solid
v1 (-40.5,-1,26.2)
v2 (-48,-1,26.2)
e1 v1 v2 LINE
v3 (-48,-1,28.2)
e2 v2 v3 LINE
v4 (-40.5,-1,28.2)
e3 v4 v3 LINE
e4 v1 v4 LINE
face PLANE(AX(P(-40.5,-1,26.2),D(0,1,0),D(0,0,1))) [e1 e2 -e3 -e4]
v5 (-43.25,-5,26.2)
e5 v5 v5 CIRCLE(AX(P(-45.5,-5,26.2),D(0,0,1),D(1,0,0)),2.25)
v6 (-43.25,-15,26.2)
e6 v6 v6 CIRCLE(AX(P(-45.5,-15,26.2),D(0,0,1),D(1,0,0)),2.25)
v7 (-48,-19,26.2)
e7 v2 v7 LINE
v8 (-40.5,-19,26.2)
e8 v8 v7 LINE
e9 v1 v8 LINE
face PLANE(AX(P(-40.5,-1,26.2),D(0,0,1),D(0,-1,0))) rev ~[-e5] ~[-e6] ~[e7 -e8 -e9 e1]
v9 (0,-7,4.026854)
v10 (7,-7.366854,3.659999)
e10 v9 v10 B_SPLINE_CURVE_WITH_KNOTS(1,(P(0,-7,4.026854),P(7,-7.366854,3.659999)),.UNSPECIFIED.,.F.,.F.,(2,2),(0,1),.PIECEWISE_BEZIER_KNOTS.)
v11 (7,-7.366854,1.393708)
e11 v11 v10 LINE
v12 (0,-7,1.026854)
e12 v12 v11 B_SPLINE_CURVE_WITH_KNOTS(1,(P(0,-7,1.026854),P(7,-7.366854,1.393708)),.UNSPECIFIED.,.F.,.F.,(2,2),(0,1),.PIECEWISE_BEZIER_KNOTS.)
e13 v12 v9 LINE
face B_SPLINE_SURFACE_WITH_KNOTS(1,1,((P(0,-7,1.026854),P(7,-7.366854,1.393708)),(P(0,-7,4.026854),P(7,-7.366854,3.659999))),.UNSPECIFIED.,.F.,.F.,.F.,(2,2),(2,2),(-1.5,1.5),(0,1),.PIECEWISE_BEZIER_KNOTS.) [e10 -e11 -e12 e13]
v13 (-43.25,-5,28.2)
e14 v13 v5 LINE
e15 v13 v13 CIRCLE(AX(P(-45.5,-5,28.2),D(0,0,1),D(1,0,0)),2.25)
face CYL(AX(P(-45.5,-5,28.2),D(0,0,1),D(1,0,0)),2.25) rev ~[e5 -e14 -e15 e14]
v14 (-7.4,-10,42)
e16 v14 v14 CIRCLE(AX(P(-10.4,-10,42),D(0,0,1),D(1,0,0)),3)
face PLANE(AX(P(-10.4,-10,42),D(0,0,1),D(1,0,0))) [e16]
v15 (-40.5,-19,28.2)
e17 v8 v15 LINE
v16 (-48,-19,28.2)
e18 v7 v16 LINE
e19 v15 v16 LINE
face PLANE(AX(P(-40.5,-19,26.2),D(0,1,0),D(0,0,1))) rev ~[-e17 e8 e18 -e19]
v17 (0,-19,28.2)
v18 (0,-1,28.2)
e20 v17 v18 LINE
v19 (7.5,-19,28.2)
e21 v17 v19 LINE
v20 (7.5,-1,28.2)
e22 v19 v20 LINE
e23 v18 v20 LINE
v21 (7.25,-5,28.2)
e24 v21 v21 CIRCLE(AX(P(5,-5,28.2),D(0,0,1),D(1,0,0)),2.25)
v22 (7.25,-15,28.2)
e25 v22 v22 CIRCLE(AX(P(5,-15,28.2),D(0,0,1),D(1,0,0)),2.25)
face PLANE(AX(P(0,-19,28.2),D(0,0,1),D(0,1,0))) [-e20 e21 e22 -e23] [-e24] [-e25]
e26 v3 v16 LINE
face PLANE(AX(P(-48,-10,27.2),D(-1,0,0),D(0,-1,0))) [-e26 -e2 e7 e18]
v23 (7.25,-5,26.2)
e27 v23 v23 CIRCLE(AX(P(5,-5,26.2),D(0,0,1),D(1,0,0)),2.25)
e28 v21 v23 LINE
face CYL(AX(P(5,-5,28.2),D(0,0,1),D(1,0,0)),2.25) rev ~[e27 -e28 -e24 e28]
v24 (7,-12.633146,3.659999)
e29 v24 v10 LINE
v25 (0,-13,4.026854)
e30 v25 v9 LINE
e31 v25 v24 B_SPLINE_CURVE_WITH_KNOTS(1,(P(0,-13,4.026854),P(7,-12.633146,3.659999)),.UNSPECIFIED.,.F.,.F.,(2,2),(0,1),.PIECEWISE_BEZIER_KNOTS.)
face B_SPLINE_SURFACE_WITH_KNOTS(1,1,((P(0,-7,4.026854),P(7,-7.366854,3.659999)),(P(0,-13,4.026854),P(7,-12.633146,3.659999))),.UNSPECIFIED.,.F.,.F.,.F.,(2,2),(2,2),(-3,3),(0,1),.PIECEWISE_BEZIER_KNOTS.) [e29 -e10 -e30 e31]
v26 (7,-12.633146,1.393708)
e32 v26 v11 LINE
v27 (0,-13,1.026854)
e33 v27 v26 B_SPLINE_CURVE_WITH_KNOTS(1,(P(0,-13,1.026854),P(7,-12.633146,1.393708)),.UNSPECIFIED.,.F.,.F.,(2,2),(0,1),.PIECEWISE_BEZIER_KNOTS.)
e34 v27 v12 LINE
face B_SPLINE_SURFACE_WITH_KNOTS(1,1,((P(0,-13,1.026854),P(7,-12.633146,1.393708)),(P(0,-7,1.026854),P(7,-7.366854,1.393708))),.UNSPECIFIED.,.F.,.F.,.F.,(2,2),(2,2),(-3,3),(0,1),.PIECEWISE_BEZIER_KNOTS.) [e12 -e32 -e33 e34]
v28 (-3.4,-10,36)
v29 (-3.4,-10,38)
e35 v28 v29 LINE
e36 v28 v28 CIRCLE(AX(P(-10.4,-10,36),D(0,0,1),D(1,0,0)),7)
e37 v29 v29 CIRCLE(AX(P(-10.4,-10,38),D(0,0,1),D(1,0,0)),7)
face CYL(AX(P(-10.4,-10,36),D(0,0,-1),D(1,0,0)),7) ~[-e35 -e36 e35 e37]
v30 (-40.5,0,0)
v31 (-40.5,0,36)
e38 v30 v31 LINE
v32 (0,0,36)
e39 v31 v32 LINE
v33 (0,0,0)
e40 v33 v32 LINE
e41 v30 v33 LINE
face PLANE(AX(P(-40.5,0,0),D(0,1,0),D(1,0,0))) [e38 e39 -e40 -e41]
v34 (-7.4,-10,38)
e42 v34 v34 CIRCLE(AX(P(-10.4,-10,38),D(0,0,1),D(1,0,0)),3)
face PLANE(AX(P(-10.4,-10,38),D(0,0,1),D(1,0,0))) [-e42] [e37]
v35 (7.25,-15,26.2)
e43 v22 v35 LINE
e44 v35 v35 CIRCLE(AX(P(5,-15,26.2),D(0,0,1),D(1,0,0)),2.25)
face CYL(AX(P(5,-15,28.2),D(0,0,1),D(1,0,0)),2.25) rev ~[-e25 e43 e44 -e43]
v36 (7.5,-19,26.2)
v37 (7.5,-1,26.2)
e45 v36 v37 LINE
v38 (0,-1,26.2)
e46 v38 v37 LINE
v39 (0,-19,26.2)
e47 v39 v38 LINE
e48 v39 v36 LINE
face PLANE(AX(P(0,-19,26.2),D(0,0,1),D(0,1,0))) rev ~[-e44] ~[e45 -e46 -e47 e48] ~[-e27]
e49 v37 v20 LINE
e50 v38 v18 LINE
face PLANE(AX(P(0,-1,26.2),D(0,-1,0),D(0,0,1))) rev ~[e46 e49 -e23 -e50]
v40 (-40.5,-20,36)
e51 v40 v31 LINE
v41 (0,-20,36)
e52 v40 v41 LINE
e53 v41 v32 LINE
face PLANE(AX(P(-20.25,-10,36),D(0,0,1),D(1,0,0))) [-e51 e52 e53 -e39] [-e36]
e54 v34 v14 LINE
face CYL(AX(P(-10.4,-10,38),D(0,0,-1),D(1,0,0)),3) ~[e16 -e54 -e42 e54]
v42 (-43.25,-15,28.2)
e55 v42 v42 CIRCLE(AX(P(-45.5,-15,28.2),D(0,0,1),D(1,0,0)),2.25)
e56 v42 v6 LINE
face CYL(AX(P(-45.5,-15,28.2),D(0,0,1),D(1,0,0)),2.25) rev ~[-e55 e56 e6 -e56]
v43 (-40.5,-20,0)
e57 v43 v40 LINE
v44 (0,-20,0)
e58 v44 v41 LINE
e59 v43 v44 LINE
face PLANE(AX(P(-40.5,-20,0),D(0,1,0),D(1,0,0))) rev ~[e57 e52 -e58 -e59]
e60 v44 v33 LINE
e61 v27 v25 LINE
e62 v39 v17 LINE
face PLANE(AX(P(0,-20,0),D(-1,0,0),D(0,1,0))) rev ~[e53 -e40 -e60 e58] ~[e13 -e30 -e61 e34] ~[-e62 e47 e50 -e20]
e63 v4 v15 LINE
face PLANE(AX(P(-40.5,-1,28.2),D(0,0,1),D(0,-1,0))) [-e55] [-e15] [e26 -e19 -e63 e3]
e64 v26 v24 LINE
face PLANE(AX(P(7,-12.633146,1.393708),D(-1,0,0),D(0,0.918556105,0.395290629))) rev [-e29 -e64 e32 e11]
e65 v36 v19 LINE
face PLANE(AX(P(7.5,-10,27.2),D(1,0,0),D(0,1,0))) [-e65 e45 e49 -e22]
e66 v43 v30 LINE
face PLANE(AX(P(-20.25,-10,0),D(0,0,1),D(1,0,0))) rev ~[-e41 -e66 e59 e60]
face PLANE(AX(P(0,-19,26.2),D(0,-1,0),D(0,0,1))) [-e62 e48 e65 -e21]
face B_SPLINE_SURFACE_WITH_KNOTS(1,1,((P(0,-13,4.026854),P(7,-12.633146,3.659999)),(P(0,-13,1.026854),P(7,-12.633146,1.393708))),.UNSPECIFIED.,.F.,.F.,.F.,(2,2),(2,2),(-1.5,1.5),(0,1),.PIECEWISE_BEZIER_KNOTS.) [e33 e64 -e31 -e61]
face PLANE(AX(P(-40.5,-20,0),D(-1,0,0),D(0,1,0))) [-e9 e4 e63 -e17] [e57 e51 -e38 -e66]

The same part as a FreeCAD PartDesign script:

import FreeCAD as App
import Part
import Sketcher

V = App.Vector


def add_polygon(sketch, points):
    """Adds a closed chain of lines whose ends are joined by coincident constraints."""
    first, n = sketch.GeometryCount, len(points)
    for a, b in zip(points, points[1:] + points[:1]):
        sketch.addGeometry(Part.LineSegment(App.Vector(*a, 0), App.Vector(*b, 0)), False)
    for i in range(n):
        sketch.addConstraint(Sketcher.Constraint("Coincident", first + i, 2, first + (i + 1) % n, 1))

doc = App.newDocument("Part")
body = doc.addObject("PartDesign::Body", "Body")

sketch1 = body.newObject("Sketcher::SketchObject", "Sketch")
sketch1.AttachmentSupport = (doc.getObject("XY_Plane"), [""])
sketch1.MapMode = "FlatFace"
add_polygon(sketch1, [(-40.5, 0), (-40.5, -20), (0, -20), (0, 0)])
sketch1.addConstraint([
    Sketcher.Constraint("Vertical", 0),
    Sketcher.Constraint("Horizontal", 1),
    Sketcher.Constraint("Vertical", 2),
    Sketcher.Constraint("Horizontal", 3),
    Sketcher.Constraint("Coincident", 2, 2, -1, 1),
    Sketcher.Constraint("DistanceY", 0, 2, 0, 1, 20.0),
    Sketcher.Constraint("DistanceX", 1, 1, 1, 2, 40.5),
])
pad1 = body.newObject("PartDesign::Pad", "Pad")
pad1.Profile = sketch1
pad1.Length = 36

sketch2 = body.newObject("Sketcher::SketchObject", "Sketch001")
sketch2.AttachmentSupport = (doc.getObject("XY_Plane"), [""])
sketch2.MapMode = "FlatFace"
sketch2.AttachmentOffset = App.Placement(V(0, 0, 36), App.Rotation())
sketch2.addGeometry(Part.Circle(V(-10.4, -10, 0), V(0, 0, 1), 7), False)
sketch2.addConstraint([
    Sketcher.Constraint("Diameter", 0, 14.0),
    Sketcher.Constraint("DistanceY", 0, 3, -1, 1, 10.0),
    Sketcher.Constraint("DistanceX", 0, 3, -1, 1, 10.4),
])
pad2 = body.newObject("PartDesign::Pad", "Pad001")
pad2.Profile = sketch2
pad2.Length = 2

sketch3 = body.newObject("Sketcher::SketchObject", "Sketch002")
sketch3.AttachmentSupport = (doc.getObject("XY_Plane"), [""])
sketch3.MapMode = "FlatFace"
sketch3.AttachmentOffset = App.Placement(V(0, 0, 38), App.Rotation())
sketch3.addGeometry(Part.Circle(V(-10.4, -10, 0), V(0, 0, 1), 3), False)
sketch3.addConstraint([
    Sketcher.Constraint("Diameter", 0, 6.0),
    Sketcher.Constraint("DistanceY", 0, 3, -1, 1, 10.0),
    Sketcher.Constraint("DistanceX", 0, 3, -1, 1, 10.4),
])
pad3 = body.newObject("PartDesign::Pad", "Pad002")
pad3.Profile = sketch3
pad3.Length = 4

sketch4 = body.newObject("Sketcher::SketchObject", "Sketch003")
sketch4.AttachmentSupport = (doc.getObject("YZ_Plane"), [""])
sketch4.MapMode = "FlatFace"
add_polygon(sketch4, [(-19, 28.2), (-19, 26.2), (-1, 26.2), (-1, 28.2)])
sketch4.addConstraint([
    Sketcher.Constraint("Vertical", 0),
    Sketcher.Constraint("Horizontal", 1),
    Sketcher.Constraint("Vertical", 2),
    Sketcher.Constraint("Horizontal", 3),
    Sketcher.Constraint("DistanceX", 1, 1, 1, 2, 18.0),
    Sketcher.Constraint("DistanceY", 0, 2, 0, 1, 2.0),
    Sketcher.Constraint("DistanceX", 0, 2, -1, 1, 19.0),
    Sketcher.Constraint("DistanceY", -1, 1, 0, 2, 26.2),
])
pad4 = body.newObject("PartDesign::Pad", "Pad003")
pad4.Profile = sketch4
pad4.Length = 7.5

sketch5 = body.newObject("Sketcher::SketchObject", "Sketch004")
sketch5.AttachmentSupport = (doc.getObject("YZ_Plane"), [""])
sketch5.MapMode = "FlatFace"
sketch5.AttachmentOffset = App.Placement(V(0, 0, -40.5), App.Rotation())
add_polygon(sketch5, [(-1, 28.2), (-1, 26.2), (-19, 26.2), (-19, 28.2)])
sketch5.addConstraint([
    Sketcher.Constraint("Vertical", 0),
    Sketcher.Constraint("Horizontal", 1),
    Sketcher.Constraint("Vertical", 2),
    Sketcher.Constraint("Horizontal", 3),
    Sketcher.Constraint("DistanceX", 1, 2, 1, 1, 18.0),
    Sketcher.Constraint("DistanceY", 0, 2, 0, 1, 2.0),
    Sketcher.Constraint("DistanceX", 0, 2, -1, 1, 1.0),
    Sketcher.Constraint("DistanceY", -1, 1, 0, 2, 26.2),
])
pad5 = body.newObject("PartDesign::Pad", "Pad004")
pad5.Profile = sketch5
pad5.Length = 7.5
pad5.Reversed = True

sketch6 = body.newObject("Sketcher::SketchObject", "Sketch005")
sketch6.AttachmentSupport = (doc.getObject("XY_Plane"), [""])
sketch6.MapMode = "FlatFace"
sketch6.AttachmentOffset = App.Placement(V(0, 0, 28.2), App.Rotation())
sketch6.addGeometry([
    Part.Circle(V(5, -15, 0), V(0, 0, 1), 2.25),
    Part.Circle(V(5, -5, 0), V(0, 0, 1), 2.25),
    Part.Circle(V(-45.5, -5, 0), V(0, 0, 1), 2.25),
    Part.Circle(V(-45.5, -15, 0), V(0, 0, 1), 2.25),
], False)
sketch6.addConstraint([
    Sketcher.Constraint("Equal", 0, 1),
    Sketcher.Constraint("Equal", 1, 2),
    Sketcher.Constraint("Equal", 2, 3),
    Sketcher.Constraint("Horizontal", 1, 3, 2, 3),
    Sketcher.Constraint("Horizontal", 0, 3, 3, 3),
    Sketcher.Constraint("Vertical", 0, 3, 1, 3),
    Sketcher.Constraint("Vertical", 2, 3, 3, 3),
    Sketcher.Constraint("Diameter", 0, 4.5),
    Sketcher.Constraint("DistanceX", -1, 1, 0, 3, 5.0),
    Sketcher.Constraint("DistanceY", 0, 3, -1, 1, 15.0),
    Sketcher.Constraint("DistanceY", 1, 3, -1, 1, 5.0),
    Sketcher.Constraint("DistanceX", 2, 3, -1, 1, 45.5),
])
pocket1 = body.newObject("PartDesign::Pocket", "Pocket")
pocket1.Profile = sketch6
pocket1.Length = 25

sketch7 = body.newObject("Sketcher::SketchObject", "Sketch006")
sketch7.AttachmentSupport = (doc.getObject("YZ_Plane"), [""])
sketch7.MapMode = "FlatFace"
add_polygon(sketch7, [(-13, 4.026854), (-13, 1.026854), (-7, 1.026854), (-7, 4.026854)])
sketch7.addConstraint([
    Sketcher.Constraint("Vertical", 0),
    Sketcher.Constraint("Horizontal", 1),
    Sketcher.Constraint("Vertical", 2),
    Sketcher.Constraint("Horizontal", 3),
    Sketcher.Constraint("DistanceX", 1, 1, 1, 2, 6.0),
    Sketcher.Constraint("DistanceY", 0, 2, 0, 1, 3.0),
    Sketcher.Constraint("DistanceX", 0, 2, -1, 1, 13.0),
    Sketcher.Constraint("DistanceY", -1, 1, 0, 2, 1.026854),
])
pad6 = body.newObject("PartDesign::Pad", "Pad005")
pad6.Profile = sketch7
pad6.Length = 7
pad6.TaperAngle = -3

doc.recompute()
